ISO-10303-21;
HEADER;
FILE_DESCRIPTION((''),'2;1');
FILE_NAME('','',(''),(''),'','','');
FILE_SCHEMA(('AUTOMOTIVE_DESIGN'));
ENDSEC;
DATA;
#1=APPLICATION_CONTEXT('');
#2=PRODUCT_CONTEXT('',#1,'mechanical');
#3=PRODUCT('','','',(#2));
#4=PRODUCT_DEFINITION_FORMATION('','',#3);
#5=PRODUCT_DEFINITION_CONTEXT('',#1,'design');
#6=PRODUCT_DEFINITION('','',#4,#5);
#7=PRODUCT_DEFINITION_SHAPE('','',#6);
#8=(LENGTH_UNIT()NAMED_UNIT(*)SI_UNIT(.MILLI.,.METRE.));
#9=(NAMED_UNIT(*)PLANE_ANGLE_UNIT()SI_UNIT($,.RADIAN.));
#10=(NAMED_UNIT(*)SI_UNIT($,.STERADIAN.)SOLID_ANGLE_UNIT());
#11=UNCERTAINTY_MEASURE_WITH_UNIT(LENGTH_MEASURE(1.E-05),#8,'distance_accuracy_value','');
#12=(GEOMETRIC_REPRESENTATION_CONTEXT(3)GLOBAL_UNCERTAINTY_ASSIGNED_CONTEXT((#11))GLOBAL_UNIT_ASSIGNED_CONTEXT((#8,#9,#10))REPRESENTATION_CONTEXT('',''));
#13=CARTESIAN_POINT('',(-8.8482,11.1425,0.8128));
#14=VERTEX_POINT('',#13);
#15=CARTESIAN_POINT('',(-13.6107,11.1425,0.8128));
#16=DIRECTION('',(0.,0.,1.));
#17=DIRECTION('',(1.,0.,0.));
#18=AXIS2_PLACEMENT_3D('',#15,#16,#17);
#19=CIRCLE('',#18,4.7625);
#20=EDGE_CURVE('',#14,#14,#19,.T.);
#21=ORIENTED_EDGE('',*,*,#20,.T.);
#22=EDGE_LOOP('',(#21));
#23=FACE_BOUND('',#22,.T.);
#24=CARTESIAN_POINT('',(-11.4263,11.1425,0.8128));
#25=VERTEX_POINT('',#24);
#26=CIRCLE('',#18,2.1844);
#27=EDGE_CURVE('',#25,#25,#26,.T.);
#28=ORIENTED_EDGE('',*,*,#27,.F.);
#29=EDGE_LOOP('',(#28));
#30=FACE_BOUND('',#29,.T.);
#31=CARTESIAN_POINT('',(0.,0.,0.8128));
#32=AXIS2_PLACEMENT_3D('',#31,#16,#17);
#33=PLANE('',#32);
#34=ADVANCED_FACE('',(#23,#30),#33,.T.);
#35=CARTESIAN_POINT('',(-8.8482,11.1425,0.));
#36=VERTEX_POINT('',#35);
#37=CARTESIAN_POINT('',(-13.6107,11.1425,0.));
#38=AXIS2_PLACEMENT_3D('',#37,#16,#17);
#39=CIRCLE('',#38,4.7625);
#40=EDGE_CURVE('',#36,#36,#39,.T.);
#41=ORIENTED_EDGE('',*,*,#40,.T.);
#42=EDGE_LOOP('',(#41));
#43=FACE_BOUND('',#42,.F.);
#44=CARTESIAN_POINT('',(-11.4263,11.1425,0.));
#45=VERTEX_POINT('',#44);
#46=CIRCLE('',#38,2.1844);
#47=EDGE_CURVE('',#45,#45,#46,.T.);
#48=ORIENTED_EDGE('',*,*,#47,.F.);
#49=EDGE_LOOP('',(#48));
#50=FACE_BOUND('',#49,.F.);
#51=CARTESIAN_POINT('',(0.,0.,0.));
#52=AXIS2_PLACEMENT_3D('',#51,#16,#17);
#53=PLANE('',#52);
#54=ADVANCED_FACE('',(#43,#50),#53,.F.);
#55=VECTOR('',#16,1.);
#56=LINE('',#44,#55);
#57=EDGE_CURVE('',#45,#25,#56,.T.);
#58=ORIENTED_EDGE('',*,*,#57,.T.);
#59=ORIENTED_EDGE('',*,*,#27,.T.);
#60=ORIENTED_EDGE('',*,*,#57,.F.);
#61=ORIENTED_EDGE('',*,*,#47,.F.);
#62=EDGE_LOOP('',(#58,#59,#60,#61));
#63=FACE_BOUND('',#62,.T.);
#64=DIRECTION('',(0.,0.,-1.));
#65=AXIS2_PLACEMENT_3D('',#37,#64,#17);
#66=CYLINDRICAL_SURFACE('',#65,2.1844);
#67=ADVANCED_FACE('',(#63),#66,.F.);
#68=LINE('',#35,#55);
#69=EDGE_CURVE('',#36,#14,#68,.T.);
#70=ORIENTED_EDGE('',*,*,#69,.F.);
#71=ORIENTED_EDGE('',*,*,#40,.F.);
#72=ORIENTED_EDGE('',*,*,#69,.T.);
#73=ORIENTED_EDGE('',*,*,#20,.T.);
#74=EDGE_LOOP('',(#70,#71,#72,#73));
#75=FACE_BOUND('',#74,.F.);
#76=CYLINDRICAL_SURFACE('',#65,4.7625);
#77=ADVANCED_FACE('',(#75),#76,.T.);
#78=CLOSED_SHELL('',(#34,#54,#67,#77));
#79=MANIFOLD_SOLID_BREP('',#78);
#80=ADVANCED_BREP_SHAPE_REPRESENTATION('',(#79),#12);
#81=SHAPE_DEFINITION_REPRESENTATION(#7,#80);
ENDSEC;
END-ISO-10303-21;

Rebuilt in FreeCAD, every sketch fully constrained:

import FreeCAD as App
import Part
import Sketcher
from FreeCAD import Vector
Q = App.Units.Quantity

doc = App.newDocument("Part")
body = doc.addObject("PartDesign::Body", "Body")

sketch1 = body.newObject("Sketcher::SketchObject", "Sketch")
sketch1.AttachmentSupport = (doc.getObject("XY_Plane"), [""])
sketch1.MapMode = "FlatFace"
sketch1.addGeometry(Part.Circle(Vector(-13.6107, 11.1425, 0), Vector(0, 0, 1), 4.7625), False)
sketch1.addGeometry(Part.Circle(Vector(-13.6107, 11.1425, 0), Vector(0, 0, 1), 2.1844), False)
sketch1.addConstraint(Sketcher.Constraint("Coincident", 1, 3, 0, 3))
sketch1.addConstraint(Sketcher.Constraint("Diameter", 0, Q("0.375 in")))
sketch1.addConstraint(Sketcher.Constraint("Diameter", 1, Q("0.172 in")))
sketch1.addConstraint(Sketcher.Constraint("DistanceX", 0, 3, -1, 1, Q("13.6107 mm")))
sketch1.addConstraint(Sketcher.Constraint("DistanceY", -1, 1, 0, 3, Q("11.1425 mm")))
pad1 = body.newObject("PartDesign::Pad", "Pad")
pad1.Profile = sketch1
pad1.Length = Q("0.032 in")

doc.recompute()
